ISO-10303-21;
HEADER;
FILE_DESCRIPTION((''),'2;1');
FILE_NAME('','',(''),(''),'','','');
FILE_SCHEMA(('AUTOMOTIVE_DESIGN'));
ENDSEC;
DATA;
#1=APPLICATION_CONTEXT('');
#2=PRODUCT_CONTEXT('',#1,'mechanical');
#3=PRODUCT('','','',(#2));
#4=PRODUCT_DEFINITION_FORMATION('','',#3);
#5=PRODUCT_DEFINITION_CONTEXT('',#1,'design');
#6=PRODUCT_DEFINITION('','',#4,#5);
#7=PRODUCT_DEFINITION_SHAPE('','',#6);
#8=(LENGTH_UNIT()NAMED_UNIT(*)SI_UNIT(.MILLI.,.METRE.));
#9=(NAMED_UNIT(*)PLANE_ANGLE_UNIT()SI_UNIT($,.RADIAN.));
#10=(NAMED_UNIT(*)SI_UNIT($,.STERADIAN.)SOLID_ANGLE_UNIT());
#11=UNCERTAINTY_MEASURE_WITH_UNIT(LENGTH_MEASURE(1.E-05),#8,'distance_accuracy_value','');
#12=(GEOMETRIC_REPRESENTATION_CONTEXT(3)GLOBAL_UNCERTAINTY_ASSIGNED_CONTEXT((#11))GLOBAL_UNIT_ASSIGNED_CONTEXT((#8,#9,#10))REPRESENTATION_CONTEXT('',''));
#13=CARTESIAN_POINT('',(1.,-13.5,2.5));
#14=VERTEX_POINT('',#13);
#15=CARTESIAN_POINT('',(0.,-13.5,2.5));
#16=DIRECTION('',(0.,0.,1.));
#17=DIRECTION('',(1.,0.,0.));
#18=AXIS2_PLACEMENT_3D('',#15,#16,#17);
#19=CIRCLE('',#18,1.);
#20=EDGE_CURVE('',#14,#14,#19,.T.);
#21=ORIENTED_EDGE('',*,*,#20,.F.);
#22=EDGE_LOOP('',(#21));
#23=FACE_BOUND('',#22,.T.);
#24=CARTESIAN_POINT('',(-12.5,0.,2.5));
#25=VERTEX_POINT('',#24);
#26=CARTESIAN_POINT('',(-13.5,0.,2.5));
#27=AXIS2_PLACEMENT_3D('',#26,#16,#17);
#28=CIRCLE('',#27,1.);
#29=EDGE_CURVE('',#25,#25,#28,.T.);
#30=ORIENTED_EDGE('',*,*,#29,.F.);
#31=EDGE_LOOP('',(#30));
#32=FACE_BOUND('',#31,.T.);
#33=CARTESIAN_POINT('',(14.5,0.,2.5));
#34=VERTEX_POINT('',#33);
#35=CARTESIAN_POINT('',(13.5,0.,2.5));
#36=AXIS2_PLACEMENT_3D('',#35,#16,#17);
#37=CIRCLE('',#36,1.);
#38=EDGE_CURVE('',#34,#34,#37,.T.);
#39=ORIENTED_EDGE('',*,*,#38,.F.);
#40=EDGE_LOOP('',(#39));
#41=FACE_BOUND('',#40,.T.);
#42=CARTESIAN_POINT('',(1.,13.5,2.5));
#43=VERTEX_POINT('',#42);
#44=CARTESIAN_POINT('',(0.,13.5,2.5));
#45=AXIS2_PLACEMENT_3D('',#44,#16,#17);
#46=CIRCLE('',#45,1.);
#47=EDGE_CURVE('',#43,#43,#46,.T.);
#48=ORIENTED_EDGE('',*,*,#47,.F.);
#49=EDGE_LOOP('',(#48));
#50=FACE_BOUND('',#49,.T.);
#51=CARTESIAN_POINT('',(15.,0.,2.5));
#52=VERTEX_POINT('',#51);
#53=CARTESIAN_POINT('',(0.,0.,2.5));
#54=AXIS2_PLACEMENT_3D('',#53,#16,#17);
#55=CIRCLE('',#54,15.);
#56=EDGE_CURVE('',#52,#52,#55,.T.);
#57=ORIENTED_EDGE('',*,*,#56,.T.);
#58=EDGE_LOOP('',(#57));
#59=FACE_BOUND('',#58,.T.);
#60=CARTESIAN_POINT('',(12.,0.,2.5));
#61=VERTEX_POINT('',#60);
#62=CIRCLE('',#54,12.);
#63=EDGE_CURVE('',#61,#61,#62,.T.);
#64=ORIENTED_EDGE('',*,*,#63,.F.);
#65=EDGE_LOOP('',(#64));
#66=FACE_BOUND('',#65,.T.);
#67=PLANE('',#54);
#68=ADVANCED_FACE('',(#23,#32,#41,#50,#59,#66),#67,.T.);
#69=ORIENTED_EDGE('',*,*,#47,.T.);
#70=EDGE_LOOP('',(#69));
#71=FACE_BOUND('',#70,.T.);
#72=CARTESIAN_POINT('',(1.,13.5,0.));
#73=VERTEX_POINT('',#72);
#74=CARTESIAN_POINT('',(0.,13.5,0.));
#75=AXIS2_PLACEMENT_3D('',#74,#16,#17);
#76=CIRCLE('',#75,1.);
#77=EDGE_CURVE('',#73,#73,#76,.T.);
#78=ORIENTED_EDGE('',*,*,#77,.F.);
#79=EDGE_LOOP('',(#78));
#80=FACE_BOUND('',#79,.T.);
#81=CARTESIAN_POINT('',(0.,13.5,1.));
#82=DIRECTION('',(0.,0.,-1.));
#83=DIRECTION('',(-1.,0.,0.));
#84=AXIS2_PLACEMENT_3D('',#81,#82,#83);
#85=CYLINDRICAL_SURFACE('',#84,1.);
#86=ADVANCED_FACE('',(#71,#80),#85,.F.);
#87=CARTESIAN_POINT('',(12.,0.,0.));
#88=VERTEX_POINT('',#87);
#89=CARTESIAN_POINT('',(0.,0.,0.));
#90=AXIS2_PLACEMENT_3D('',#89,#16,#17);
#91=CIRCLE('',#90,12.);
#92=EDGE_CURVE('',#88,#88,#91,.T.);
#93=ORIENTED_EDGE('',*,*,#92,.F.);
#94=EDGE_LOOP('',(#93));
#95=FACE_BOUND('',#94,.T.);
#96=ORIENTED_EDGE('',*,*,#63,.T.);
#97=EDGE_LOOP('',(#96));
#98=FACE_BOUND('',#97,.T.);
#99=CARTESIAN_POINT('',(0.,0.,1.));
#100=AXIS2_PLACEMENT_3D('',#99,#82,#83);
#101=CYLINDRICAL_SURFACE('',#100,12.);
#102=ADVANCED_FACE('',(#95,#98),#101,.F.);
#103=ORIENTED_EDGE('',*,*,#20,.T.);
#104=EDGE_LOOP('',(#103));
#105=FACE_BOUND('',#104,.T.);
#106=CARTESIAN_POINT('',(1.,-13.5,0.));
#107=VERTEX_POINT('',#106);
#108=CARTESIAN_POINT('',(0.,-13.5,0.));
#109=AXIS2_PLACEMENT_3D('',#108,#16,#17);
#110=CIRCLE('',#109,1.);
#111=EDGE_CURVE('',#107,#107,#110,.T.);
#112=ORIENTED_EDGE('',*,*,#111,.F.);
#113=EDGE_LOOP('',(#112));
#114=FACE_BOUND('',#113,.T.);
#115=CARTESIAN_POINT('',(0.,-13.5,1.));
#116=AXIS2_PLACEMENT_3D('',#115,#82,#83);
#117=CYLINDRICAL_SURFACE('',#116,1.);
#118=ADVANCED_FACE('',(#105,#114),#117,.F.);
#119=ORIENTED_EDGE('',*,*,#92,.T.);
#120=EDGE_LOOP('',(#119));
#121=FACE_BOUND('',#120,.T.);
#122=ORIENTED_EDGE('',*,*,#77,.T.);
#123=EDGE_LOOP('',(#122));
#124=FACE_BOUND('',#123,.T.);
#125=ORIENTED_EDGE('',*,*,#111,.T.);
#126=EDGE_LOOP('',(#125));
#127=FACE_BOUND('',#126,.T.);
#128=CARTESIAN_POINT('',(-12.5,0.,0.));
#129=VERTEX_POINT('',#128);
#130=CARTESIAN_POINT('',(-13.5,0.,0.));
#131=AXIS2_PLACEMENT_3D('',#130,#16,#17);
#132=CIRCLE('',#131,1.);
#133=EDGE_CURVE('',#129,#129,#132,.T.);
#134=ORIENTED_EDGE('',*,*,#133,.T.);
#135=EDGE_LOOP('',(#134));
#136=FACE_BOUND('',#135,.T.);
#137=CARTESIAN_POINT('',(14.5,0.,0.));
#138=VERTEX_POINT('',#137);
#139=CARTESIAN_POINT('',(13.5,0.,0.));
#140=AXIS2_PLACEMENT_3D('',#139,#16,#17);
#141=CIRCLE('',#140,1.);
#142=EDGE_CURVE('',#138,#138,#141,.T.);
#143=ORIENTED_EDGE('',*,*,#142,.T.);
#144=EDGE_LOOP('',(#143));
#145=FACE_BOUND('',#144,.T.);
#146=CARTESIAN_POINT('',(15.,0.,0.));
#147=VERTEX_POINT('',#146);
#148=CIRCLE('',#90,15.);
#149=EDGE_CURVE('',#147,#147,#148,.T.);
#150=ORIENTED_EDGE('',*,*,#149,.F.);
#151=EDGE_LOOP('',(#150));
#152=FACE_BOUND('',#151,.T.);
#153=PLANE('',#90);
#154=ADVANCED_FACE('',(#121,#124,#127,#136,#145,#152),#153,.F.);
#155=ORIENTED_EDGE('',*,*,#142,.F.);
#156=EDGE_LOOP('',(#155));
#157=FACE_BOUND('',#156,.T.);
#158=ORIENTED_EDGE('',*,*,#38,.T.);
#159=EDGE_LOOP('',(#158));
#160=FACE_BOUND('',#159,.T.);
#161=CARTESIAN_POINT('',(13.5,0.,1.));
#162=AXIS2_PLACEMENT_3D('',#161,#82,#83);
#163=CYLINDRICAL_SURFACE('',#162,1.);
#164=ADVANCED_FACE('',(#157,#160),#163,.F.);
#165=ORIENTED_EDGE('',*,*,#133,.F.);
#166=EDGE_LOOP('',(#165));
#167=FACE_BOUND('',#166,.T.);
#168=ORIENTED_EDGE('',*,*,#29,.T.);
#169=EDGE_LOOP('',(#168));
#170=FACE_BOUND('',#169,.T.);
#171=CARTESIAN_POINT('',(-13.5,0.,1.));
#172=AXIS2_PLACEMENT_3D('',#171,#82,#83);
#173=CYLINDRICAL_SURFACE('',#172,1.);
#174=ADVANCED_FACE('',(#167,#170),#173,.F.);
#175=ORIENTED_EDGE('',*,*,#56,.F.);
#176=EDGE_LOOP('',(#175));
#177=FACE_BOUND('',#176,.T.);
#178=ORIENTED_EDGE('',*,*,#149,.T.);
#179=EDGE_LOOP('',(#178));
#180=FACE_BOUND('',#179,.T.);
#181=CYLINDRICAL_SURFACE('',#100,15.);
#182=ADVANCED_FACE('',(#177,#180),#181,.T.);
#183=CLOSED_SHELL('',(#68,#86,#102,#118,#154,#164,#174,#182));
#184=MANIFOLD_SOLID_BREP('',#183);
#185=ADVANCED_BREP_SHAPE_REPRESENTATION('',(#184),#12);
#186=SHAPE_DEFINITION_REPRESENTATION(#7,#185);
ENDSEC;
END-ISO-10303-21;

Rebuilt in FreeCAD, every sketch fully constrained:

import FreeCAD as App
import Part
import Sketcher
from FreeCAD import Vector

doc = App.newDocument("Part")
body = doc.addObject("PartDesign::Body", "Body")

sketch1 = doc.addObject("Sketcher::SketchObject", "Sketch")
body.addObject(sketch1)
sketch1.AttachmentSupport = (doc.XY_Plane, [""])
sketch1.MapMode = "FlatFace"
sketch1.addGeometry(Part.Circle(Vector(0, 0, 0), Vector(0, 0, 1), 15), False)
sketch1.addGeometry(Part.Circle(Vector(0, -13.5, 0), Vector(0, 0, 1), 1), False)
sketch1.addGeometry(Part.Circle(Vector(-13.5, 0, 0), Vector(0, 0, 1), 1), False)
sketch1.addGeometry(Part.Circle(Vector(0, 0, 0), Vector(0, 0, 1), 12), False)
sketch1.addGeometry(Part.Circle(Vector(13.5, 0, 0), Vector(0, 0, 1), 1), False)
sketch1.addGeometry(Part.Circle(Vector(0, 13.5, 0), Vector(0, 0, 1), 1), False)
sketch1.addConstraint(Sketcher.Constraint("Coincident", 0, 3, -1, 1))
sketch1.addConstraint(Sketcher.Constraint("Coincident", 3, 3, -1, 1))
sketch1.addConstraint(Sketcher.Constraint("Equal", 1, 2))
sketch1.addConstraint(Sketcher.Constraint("Equal", 2, 4))
sketch1.addConstraint(Sketcher.Constraint("Equal", 4, 5))
sketch1.addConstraint(Sketcher.Constraint("Symmetric", 2, 3, 4, 3, -1, 1))
sketch1.addConstraint(Sketcher.Constraint("Symmetric", 1, 3, 5, 3, -1, 1))
sketch1.addConstraint(Sketcher.Constraint("PointOnObject", 1, 3, -2))
sketch1.addConstraint(Sketcher.Constraint("PointOnObject", 2, 3, -1))
sketch1.addConstraint(Sketcher.Constraint("Diameter", 0, 30.0))
sketch1.addConstraint(Sketcher.Constraint("Diameter", 1, 2.0))
sketch1.addConstraint(Sketcher.Constraint("Diameter", 3, 24.0))
sketch1.addConstraint(Sketcher.Constraint("DistanceX", 2, 3, 4, 3, 27.0))
sketch1.addConstraint(Sketcher.Constraint("DistanceY", 1, 3, 5, 3, 27.0))
pad1 = doc.addObject("PartDesign::Pad", "Pad")
body.addObject(pad1)
pad1.Profile = sketch1
pad1.Length = 1

sketch2 = doc.addObject("Sketcher::SketchObject", "Sketch001")
body.addObject(sketch2)
sketch2.AttachmentSupport = (doc.XY_Plane, [""])
sketch2.MapMode = "FlatFace"
sketch2.AttachmentOffset = App.Placement(Vector(0, 0, 1), App.Rotation())
sketch2.addGeometry(Part.Circle(Vector(0, 0, 0), Vector(0, 0, 1), 15), False)
sketch2.addGeometry(Part.Circle(Vector(0, -13.5, 0), Vector(0, 0, 1), 1), False)
sketch2.addGeometry(Part.Circle(Vector(-13.5, 0, 0), Vector(0, 0, 1), 1), False)
sketch2.addGeometry(Part.Circle(Vector(0, 0, 0), Vector(0, 0, 1), 12), False)
sketch2.addGeometry(Part.Circle(Vector(13.5, 0, 0), Vector(0, 0, 1), 1), False)
sketch2.addGeometry(Part.Circle(Vector(0, 13.5, 0), Vector(0, 0, 1), 1), False)
sketch2.addConstraint(Sketcher.Constraint("Coincident", 0, 3, -1, 1))
sketch2.addConstraint(Sketcher.Constraint("Coincident", 3, 3, -1, 1))
sketch2.addConstraint(Sketcher.Constraint("Equal", 1, 2))
sketch2.addConstraint(Sketcher.Constraint("Equal", 2, 4))
sketch2.addConstraint(Sketcher.Constraint("Equal", 4, 5))
sketch2.addConstraint(Sketcher.Constraint("Symmetric", 2, 3, 4, 3, -1, 1))
sketch2.addConstraint(Sketcher.Constraint("Symmetric", 1, 3, 5, 3, -1, 1))
sketch2.addConstraint(Sketcher.Constraint("PointOnObject", 1, 3, -2))
sketch2.addConstraint(Sketcher.Constraint("PointOnObject", 2, 3, -1))
sketch2.addConstraint(Sketcher.Constraint("Diameter", 0, 30.0))
sketch2.addConstraint(Sketcher.Constraint("Diameter", 1, 2.0))
sketch2.addConstraint(Sketcher.Constraint("Diameter", 3, 24.0))
sketch2.addConstraint(Sketcher.Constraint("DistanceX", 2, 3, 4, 3, 27.0))
sketch2.addConstraint(Sketcher.Constraint("DistanceY", 1, 3, 5, 3, 27.0))
pad2 = doc.addObject("PartDesign::Pad", "Pad001")
body.addObject(pad2)
pad2.Profile = sketch2
pad2.Length = 1.5

doc.recompute()
